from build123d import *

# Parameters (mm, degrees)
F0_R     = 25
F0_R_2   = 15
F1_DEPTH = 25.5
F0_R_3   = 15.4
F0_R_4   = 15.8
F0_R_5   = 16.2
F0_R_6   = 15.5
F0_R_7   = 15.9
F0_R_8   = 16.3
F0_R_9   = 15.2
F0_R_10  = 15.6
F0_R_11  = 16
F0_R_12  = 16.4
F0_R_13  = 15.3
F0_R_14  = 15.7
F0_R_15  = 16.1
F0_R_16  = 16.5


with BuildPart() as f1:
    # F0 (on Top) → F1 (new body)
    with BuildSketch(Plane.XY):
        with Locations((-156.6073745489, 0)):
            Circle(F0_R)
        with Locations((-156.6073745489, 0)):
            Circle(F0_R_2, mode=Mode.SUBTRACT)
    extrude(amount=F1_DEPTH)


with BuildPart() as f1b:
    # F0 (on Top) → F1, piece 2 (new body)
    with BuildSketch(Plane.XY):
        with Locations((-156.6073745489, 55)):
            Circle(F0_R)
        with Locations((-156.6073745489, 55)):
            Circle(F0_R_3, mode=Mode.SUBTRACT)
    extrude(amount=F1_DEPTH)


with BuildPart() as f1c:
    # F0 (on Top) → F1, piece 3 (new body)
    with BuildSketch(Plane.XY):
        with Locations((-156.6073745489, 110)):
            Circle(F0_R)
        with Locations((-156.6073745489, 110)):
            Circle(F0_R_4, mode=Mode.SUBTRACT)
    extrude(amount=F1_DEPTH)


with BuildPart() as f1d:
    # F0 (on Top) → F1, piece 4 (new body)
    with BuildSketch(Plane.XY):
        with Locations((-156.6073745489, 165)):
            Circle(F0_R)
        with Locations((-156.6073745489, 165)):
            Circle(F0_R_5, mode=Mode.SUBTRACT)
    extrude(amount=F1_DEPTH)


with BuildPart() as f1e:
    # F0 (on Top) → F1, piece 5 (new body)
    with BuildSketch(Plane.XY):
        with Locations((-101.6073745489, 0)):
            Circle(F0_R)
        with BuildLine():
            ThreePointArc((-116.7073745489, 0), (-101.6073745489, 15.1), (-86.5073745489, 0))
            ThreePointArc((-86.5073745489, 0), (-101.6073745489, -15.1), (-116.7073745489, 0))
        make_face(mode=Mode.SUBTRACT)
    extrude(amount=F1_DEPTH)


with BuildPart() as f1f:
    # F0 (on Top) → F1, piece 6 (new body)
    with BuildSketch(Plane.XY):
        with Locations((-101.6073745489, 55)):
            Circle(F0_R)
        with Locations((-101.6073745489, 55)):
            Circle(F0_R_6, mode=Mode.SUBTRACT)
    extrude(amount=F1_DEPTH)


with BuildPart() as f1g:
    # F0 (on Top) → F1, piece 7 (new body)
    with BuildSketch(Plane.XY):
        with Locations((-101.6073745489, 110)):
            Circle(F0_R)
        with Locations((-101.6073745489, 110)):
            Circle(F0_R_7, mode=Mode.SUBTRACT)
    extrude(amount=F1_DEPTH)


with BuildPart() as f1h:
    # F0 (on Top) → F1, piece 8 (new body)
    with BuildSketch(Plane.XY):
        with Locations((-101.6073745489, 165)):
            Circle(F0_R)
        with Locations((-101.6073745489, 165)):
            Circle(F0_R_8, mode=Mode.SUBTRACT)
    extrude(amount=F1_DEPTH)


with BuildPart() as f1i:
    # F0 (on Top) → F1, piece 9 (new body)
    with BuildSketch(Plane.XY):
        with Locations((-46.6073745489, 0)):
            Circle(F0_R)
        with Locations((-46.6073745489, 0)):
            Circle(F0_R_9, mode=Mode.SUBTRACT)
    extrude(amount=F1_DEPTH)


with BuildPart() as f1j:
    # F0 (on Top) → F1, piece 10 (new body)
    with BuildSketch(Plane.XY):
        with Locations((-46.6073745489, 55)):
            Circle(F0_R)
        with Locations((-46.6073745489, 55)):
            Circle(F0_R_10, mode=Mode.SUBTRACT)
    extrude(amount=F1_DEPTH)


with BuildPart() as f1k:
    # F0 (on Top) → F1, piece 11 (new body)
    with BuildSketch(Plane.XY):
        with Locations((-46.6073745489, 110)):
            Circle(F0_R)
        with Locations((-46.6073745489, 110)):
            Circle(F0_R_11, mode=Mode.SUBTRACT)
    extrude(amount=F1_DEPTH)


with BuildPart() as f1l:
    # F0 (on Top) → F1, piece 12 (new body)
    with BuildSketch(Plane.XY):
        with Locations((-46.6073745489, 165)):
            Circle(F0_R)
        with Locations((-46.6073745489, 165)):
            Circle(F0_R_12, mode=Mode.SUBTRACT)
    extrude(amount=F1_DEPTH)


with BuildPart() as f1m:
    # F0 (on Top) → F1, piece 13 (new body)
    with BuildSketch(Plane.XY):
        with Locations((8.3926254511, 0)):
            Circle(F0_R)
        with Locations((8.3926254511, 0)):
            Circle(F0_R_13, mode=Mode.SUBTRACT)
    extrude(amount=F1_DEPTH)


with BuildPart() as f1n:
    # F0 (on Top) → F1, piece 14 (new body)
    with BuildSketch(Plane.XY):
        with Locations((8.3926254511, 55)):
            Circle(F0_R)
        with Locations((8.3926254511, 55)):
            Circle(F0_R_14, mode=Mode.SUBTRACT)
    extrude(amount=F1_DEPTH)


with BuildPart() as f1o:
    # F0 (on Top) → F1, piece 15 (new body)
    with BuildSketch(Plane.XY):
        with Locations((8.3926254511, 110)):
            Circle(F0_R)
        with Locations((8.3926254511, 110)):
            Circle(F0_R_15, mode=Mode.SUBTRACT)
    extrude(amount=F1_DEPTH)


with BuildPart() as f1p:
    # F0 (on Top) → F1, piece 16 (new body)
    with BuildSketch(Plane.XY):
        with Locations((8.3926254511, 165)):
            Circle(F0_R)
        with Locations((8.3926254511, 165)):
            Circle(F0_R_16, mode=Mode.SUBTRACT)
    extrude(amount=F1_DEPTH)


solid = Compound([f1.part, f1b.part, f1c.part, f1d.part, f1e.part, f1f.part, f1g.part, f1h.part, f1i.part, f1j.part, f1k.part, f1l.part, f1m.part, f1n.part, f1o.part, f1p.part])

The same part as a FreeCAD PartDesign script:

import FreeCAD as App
import Part
import Sketcher

V = App.Vector

doc = App.newDocument("Part")
body = doc.addObject("PartDesign::Body", "Body")

# Sketch on XY plane
sketch1 = body.newObject("Sketcher::SketchObject", "Sketch")
sketch1.AttachmentSupport = (doc.getObject("XY_Plane"), [""])
sketch1.MapMode = "FlatFace"
sketch1.addGeometry([
    Part.Circle(V(-157, 0, 0), V(0, 0, 1), 25),
    Part.Circle(V(-157, 0, 0), V(0, 0, 1), 15),
], False)
sketch1.addConstraint([
    Sketcher.Constraint("Coincident", 1, 3, 0, 3),
    Sketcher.Constraint("PointOnObject", 0, 3, -1),
    Sketcher.Constraint("Diameter", 0, 50.0),
    Sketcher.Constraint("Diameter", 1, 30.0),
    Sketcher.Constraint("DistanceX", 0, 3, -1, 1, 156.607375),
])
pad1 = body.newObject("PartDesign::Pad", "Pad")
pad1.Profile = sketch1
pad1.Length = 25.5
body2 = doc.addObject("PartDesign::Body", "Body001")

# Sketch on XY plane
sketch2 = body2.newObject("Sketcher::SketchObject", "Sketch001")
sketch2.AttachmentSupport = (doc.getObject("XY_Plane001"), [""])
sketch2.MapMode = "FlatFace"
sketch2.addGeometry([
    Part.Circle(V(-157, 55, 0), V(0, 0, 1), 25),
    Part.Circle(V(-157, 55, 0), V(0, 0, 1), 15),
], False)
sketch2.addConstraint([
    Sketcher.Constraint("Coincident", 1, 3, 0, 3),
    Sketcher.Constraint("Diameter", 0, 50.0),
    Sketcher.Constraint("Diameter", 1, 30.8),
    Sketcher.Constraint("DistanceY", -1, 1, 0, 3, 55.0),
    Sketcher.Constraint("DistanceX", 0, 3, -1, 1, 156.607375),
])
pad2 = body2.newObject("PartDesign::Pad", "Pad001")
pad2.Profile = sketch2
pad2.Length = 25.5
body3 = doc.addObject("PartDesign::Body", "Body002")

# Sketch on XY plane
sketch3 = body3.newObject("Sketcher::SketchObject", "Sketch002")
sketch3.AttachmentSupport = (doc.getObject("XY_Plane002"), [""])
sketch3.MapMode = "FlatFace"
sketch3.addGeometry([
    Part.Circle(V(-157, 110, 0), V(0, 0, 1), 25),
    Part.Circle(V(-157, 110, 0), V(0, 0, 1), 16),
], False)
sketch3.addConstraint([
    Sketcher.Constraint("Coincident", 1, 3, 0, 3),
    Sketcher.Constraint("Diameter", 0, 50.0),
    Sketcher.Constraint("Diameter", 1, 31.6),
    Sketcher.Constraint("DistanceY", -1, 1, 0, 3, 110.0),
    Sketcher.Constraint("DistanceX", 0, 3, -1, 1, 156.607375),
])
pad3 = body3.newObject("PartDesign::Pad", "Pad002")
pad3.Profile = sketch3
pad3.Length = 25.5
body4 = doc.addObject("PartDesign::Body", "Body003")

# Sketch on XY plane
sketch4 = body4.newObject("Sketcher::SketchObject", "Sketch003")
sketch4.AttachmentSupport = (doc.getObject("XY_Plane003"), [""])
sketch4.MapMode = "FlatFace"
sketch4.addGeometry([
    Part.Circle(V(-157, 165, 0), V(0, 0, 1), 25),
    Part.Circle(V(-157, 165, 0), V(0, 0, 1), 16),
], False)
sketch4.addConstraint([
    Sketcher.Constraint("Coincident", 1, 3, 0, 3),
    Sketcher.Constraint("Diameter", 0, 50.0),
    Sketcher.Constraint("Diameter", 1, 32.4),
    Sketcher.Constraint("DistanceY", -1, 1, 0, 3, 165.0),
    Sketcher.Constraint("DistanceX", 0, 3, -1, 1, 156.607375),
])
pad4 = body4.newObject("PartDesign::Pad", "Pad003")
pad4.Profile = sketch4
pad4.Length = 25.5
body5 = doc.addObject("PartDesign::Body", "Body004")

# Sketch on XY plane
sketch5 = body5.newObject("Sketcher::SketchObject", "Sketch004")
sketch5.AttachmentSupport = (doc.getObject("XY_Plane004"), [""])
sketch5.MapMode = "FlatFace"
sketch5.addGeometry([
    Part.Circle(V(-102, 0, 0), V(0, 0, 1), 25),
    Part.Circle(V(-102, 0, 0), V(0, 0, 1), 15),
], False)
sketch5.addConstraint([
    Sketcher.Constraint("Coincident", 1, 3, 0, 3),
    Sketcher.Constraint("PointOnObject", 0, 3, -1),
    Sketcher.Constraint("Diameter", 0, 50.0),
    Sketcher.Constraint("Diameter", 1, 30.2),
    Sketcher.Constraint("DistanceX", 0, 3, -1, 1, 101.607375),
])
pad5 = body5.newObject("PartDesign::Pad", "Pad004")
pad5.Profile = sketch5
pad5.Length = 25.5
body6 = doc.addObject("PartDesign::Body", "Body005")

# Sketch on XY plane
sketch6 = body6.newObject("Sketcher::SketchObject", "Sketch005")
sketch6.AttachmentSupport = (doc.getObject("XY_Plane005"), [""])
sketch6.MapMode = "FlatFace"
sketch6.addGeometry([
    Part.Circle(V(-102, 55, 0), V(0, 0, 1), 25),
    Part.Circle(V(-102, 55, 0), V(0, 0, 1), 16),
], False)
sketch6.addConstraint([
    Sketcher.Constraint("Coincident", 1, 3, 0, 3),
    Sketcher.Constraint("Diameter", 0, 50.0),
    Sketcher.Constraint("Diameter", 1, 31.0),
    Sketcher.Constraint("DistanceY", -1, 1, 0, 3, 55.0),
    Sketcher.Constraint("DistanceX", 0, 3, -1, 1, 101.607375),
])
pad6 = body6.newObject("PartDesign::Pad", "Pad005")
pad6.Profile = sketch6
pad6.Length = 25.5
body7 = doc.addObject("PartDesign::Body", "Body006")

# Sketch on XY plane
sketch7 = body7.newObject("Sketcher::SketchObject", "Sketch006")
sketch7.AttachmentSupport = (doc.getObject("XY_Plane006"), [""])
sketch7.MapMode = "FlatFace"
sketch7.addGeometry([
    Part.Circle(V(-102, 110, 0), V(0, 0, 1), 25),
    Part.Circle(V(-102, 110, 0), V(0, 0, 1), 16),
], False)
sketch7.addConstraint([
    Sketcher.Constraint("Coincident", 1, 3, 0, 3),
    Sketcher.Constraint("Diameter", 0, 50.0),
    Sketcher.Constraint("Diameter", 1, 31.8),
    Sketcher.Constraint("DistanceY", -1, 1, 0, 3, 110.0),
    Sketcher.Constraint("DistanceX", 0, 3, -1, 1, 101.607375),
])
pad7 = body7.newObject("PartDesign::Pad", "Pad006")
pad7.Profile = sketch7
pad7.Length = 25.5
body8 = doc.addObject("PartDesign::Body", "Body007")

# Sketch on XY plane
sketch8 = body8.newObject("Sketcher::SketchObject", "Sketch007")
sketch8.AttachmentSupport = (doc.getObject("XY_Plane007"), [""])
sketch8.MapMode = "FlatFace"
sketch8.addGeometry([
    Part.Circle(V(-102, 165, 0), V(0, 0, 1), 25),
    Part.Circle(V(-102, 165, 0), V(0, 0, 1), 16),
], False)
sketch8.addConstraint([
    Sketcher.Constraint("Coincident", 1, 3, 0, 3),
    Sketcher.Constraint("Diameter", 0, 50.0),
    Sketcher.Constraint("Diameter", 1, 32.6),
    Sketcher.Constraint("DistanceY", -1, 1, 0, 3, 165.0),
    Sketcher.Constraint("DistanceX", 0, 3, -1, 1, 101.607375),
])
pad8 = body8.newObject("PartDesign::Pad", "Pad007")
pad8.Profile = sketch8
pad8.Length = 25.5
body9 = doc.addObject("PartDesign::Body", "Body008")

# Sketch on XY plane
sketch9 = body9.newObject("Sketcher::SketchObject", "Sketch008")
sketch9.AttachmentSupport = (doc.getObject("XY_Plane008"), [""])
sketch9.MapMode = "FlatFace"
sketch9.addGeometry([
    Part.Circle(V(-47, 0, 0), V(0, 0, 1), 25),
    Part.Circle(V(-47, 0, 0), V(0, 0, 1), 15),
], False)
sketch9.addConstraint([
    Sketcher.Constraint("Coincident", 1, 3, 0, 3),
    Sketcher.Constraint("PointOnObject", 0, 3, -1),
    Sketcher.Constraint("Diameter", 0, 50.0),
    Sketcher.Constraint("Diameter", 1, 30.4),
    Sketcher.Constraint("DistanceX", 0, 3, -1, 1, 46.607375),
])
pad9 = body9.newObject("PartDesign::Pad", "Pad008")
pad9.Profile = sketch9
pad9.Length = 25.5
body10 = doc.addObject("PartDesign::Body", "Body009")

# Sketch on XY plane
sketch10 = body10.newObject("Sketcher::SketchObject", "Sketch009")
sketch10.AttachmentSupport = (doc.getObject("XY_Plane009"), [""])
sketch10.MapMode = "FlatFace"
sketch10.addGeometry([
    Part.Circle(V(-47, 55, 0), V(0, 0, 1), 25),
    Part.Circle(V(-47, 55, 0), V(0, 0, 1), 16),
], False)
sketch10.addConstraint([
    Sketcher.Constraint("Coincident", 1, 3, 0, 3),
    Sketcher.Constraint("Diameter", 0, 50.0),
    Sketcher.Constraint("Diameter", 1, 31.2),
    Sketcher.Constraint("DistanceY", -1, 1, 0, 3, 55.0),
    Sketcher.Constraint("DistanceX", 0, 3, -1, 1, 46.607375),
])
pad10 = body10.newObject("PartDesign::Pad", "Pad009")
pad10.Profile = sketch10
pad10.Length = 25.5
body11 = doc.addObject("PartDesign::Body", "Body010")

# Sketch on XY plane
sketch11 = body11.newObject("Sketcher::SketchObject", "Sketch010")
sketch11.AttachmentSupport = (doc.getObject("XY_Plane010"), [""])
sketch11.MapMode = "FlatFace"
sketch11.addGeometry([
    Part.Circle(V(-47, 110, 0), V(0, 0, 1), 25),
    Part.Circle(V(-47, 110, 0), V(0, 0, 1), 16),
], False)
sketch11.addConstraint([
    Sketcher.Constraint("Coincident", 1, 3, 0, 3),
    Sketcher.Constraint("Diameter", 0, 50.0),
    Sketcher.Constraint("Diameter", 1, 32.0),
    Sketcher.Constraint("DistanceY", -1, 1, 0, 3, 110.0),
    Sketcher.Constraint("DistanceX", 0, 3, -1, 1, 46.607375),
])
pad11 = body11.newObject("PartDesign::Pad", "Pad010")
pad11.Profile = sketch11
pad11.Length = 25.5
body12 = doc.addObject("PartDesign::Body", "Body011")

# Sketch on XY plane
sketch12 = body12.newObject("Sketcher::SketchObject", "Sketch011")
sketch12.AttachmentSupport = (doc.getObject("XY_Plane011"), [""])
sketch12.MapMode = "FlatFace"
sketch12.addGeometry([
    Part.Circle(V(-47, 165, 0), V(0, 0, 1), 25),
    Part.Circle(V(-47, 165, 0), V(0, 0, 1), 16),
], False)
sketch12.addConstraint([
    Sketcher.Constraint("Coincident", 1, 3, 0, 3),
    Sketcher.Constraint("Diameter", 0, 50.0),
    Sketcher.Constraint("Diameter", 1, 32.8),
    Sketcher.Constraint("DistanceY", -1, 1, 0, 3, 165.0),
    Sketcher.Constraint("DistanceX", 0, 3, -1, 1, 46.607375),
])
pad12 = body12.newObject("PartDesign::Pad", "Pad011")
pad12.Profile = sketch12
pad12.Length = 25.5
body13 = doc.addObject("PartDesign::Body", "Body012")

# Sketch on XY plane
sketch13 = body13.newObject("Sketcher::SketchObject", "Sketch012")
sketch13.AttachmentSupport = (doc.getObject("XY_Plane012"), [""])
sketch13.MapMode = "FlatFace"
sketch13.addGeometry([
    Part.Circle(V(8, 0, 0), V(0, 0, 1), 25),
    Part.Circle(V(8, 0, 0), V(0, 0, 1), 15),
], False)
sketch13.addConstraint([
    Sketcher.Constraint("Coincident", 1, 3, 0, 3),
    Sketcher.Constraint("PointOnObject", 0, 3, -1),
    Sketcher.Constraint("Diameter", 0, 50.0),
    Sketcher.Constraint("Diameter", 1, 30.6),
    Sketcher.Constraint("DistanceX", -1, 1, 0, 3, 8.392625),
])
pad13 = body13.newObject("PartDesign::Pad", "Pad012")
pad13.Profile = sketch13
pad13.Length = 25.5
body14 = doc.addObject("PartDesign::Body", "Body013")

# Sketch on XY plane
sketch14 = body14.newObject("Sketcher::SketchObject", "Sketch013")
sketch14.AttachmentSupport = (doc.getObject("XY_Plane013"), [""])
sketch14.MapMode = "FlatFace"
sketch14.addGeometry([
    Part.Circle(V(8, 55, 0), V(0, 0, 1), 25),
    Part.Circle(V(8, 55, 0), V(0, 0, 1), 16),
], False)
sketch14.addConstraint([
    Sketcher.Constraint("Coincident", 1, 3, 0, 3),
    Sketcher.Constraint("Diameter", 0, 50.0),
    Sketcher.Constraint("Diameter", 1, 31.4),
    Sketcher.Constraint("DistanceY", -1, 1, 0, 3, 55.0),
    Sketcher.Constraint("DistanceX", -1, 1, 0, 3, 8.392625),
])
pad14 = body14.newObject("PartDesign::Pad", "Pad013")
pad14.Profile = sketch14
pad14.Length = 25.5
body15 = doc.addObject("PartDesign::Body", "Body014")

# Sketch on XY plane
sketch15 = body15.newObject("Sketcher::SketchObject", "Sketch014")
sketch15.AttachmentSupport = (doc.getObject("XY_Plane014"), [""])
sketch15.MapMode = "FlatFace"
sketch15.addGeometry([
    Part.Circle(V(8, 110, 0), V(0, 0, 1), 25),
    Part.Circle(V(8, 110, 0), V(0, 0, 1), 16),
], False)
sketch15.addConstraint([
    Sketcher.Constraint("Coincident", 1, 3, 0, 3),
    Sketcher.Constraint("Diameter", 0, 50.0),
    Sketcher.Constraint("Diameter", 1, 32.2),
    Sketcher.Constraint("DistanceY", -1, 1, 0, 3, 110.0),
    Sketcher.Constraint("DistanceX", -1, 1, 0, 3, 8.392625),
])
pad15 = body15.newObject("PartDesign::Pad", "Pad014")
pad15.Profile = sketch15
pad15.Length = 25.5
body16 = doc.addObject("PartDesign::Body", "Body015")

# Sketch on XY plane
sketch16 = body16.newObject("Sketcher::SketchObject", "Sketch015")
sketch16.AttachmentSupport = (doc.getObject("XY_Plane015"), [""])
sketch16.MapMode = "FlatFace"
sketch16.addGeometry([
    Part.Circle(V(8, 165, 0), V(0, 0, 1), 25),
    Part.Circle(V(8, 165, 0), V(0, 0, 1), 16),
], False)
sketch16.addConstraint([
    Sketcher.Constraint("Coincident", 1, 3, 0, 3),
    Sketcher.Constraint("Diameter", 0, 50.0),
    Sketcher.Constraint("Diameter", 1, 33.0),
    Sketcher.Constraint("DistanceY", -1, 1, 0, 3, 165.0),
    Sketcher.Constraint("DistanceX", -1, 1, 0, 3, 8.392625),
])
pad16 = body16.newObject("PartDesign::Pad", "Pad015")
pad16.Profile = sketch16
pad16.Length = 25.5

doc.recompute()
